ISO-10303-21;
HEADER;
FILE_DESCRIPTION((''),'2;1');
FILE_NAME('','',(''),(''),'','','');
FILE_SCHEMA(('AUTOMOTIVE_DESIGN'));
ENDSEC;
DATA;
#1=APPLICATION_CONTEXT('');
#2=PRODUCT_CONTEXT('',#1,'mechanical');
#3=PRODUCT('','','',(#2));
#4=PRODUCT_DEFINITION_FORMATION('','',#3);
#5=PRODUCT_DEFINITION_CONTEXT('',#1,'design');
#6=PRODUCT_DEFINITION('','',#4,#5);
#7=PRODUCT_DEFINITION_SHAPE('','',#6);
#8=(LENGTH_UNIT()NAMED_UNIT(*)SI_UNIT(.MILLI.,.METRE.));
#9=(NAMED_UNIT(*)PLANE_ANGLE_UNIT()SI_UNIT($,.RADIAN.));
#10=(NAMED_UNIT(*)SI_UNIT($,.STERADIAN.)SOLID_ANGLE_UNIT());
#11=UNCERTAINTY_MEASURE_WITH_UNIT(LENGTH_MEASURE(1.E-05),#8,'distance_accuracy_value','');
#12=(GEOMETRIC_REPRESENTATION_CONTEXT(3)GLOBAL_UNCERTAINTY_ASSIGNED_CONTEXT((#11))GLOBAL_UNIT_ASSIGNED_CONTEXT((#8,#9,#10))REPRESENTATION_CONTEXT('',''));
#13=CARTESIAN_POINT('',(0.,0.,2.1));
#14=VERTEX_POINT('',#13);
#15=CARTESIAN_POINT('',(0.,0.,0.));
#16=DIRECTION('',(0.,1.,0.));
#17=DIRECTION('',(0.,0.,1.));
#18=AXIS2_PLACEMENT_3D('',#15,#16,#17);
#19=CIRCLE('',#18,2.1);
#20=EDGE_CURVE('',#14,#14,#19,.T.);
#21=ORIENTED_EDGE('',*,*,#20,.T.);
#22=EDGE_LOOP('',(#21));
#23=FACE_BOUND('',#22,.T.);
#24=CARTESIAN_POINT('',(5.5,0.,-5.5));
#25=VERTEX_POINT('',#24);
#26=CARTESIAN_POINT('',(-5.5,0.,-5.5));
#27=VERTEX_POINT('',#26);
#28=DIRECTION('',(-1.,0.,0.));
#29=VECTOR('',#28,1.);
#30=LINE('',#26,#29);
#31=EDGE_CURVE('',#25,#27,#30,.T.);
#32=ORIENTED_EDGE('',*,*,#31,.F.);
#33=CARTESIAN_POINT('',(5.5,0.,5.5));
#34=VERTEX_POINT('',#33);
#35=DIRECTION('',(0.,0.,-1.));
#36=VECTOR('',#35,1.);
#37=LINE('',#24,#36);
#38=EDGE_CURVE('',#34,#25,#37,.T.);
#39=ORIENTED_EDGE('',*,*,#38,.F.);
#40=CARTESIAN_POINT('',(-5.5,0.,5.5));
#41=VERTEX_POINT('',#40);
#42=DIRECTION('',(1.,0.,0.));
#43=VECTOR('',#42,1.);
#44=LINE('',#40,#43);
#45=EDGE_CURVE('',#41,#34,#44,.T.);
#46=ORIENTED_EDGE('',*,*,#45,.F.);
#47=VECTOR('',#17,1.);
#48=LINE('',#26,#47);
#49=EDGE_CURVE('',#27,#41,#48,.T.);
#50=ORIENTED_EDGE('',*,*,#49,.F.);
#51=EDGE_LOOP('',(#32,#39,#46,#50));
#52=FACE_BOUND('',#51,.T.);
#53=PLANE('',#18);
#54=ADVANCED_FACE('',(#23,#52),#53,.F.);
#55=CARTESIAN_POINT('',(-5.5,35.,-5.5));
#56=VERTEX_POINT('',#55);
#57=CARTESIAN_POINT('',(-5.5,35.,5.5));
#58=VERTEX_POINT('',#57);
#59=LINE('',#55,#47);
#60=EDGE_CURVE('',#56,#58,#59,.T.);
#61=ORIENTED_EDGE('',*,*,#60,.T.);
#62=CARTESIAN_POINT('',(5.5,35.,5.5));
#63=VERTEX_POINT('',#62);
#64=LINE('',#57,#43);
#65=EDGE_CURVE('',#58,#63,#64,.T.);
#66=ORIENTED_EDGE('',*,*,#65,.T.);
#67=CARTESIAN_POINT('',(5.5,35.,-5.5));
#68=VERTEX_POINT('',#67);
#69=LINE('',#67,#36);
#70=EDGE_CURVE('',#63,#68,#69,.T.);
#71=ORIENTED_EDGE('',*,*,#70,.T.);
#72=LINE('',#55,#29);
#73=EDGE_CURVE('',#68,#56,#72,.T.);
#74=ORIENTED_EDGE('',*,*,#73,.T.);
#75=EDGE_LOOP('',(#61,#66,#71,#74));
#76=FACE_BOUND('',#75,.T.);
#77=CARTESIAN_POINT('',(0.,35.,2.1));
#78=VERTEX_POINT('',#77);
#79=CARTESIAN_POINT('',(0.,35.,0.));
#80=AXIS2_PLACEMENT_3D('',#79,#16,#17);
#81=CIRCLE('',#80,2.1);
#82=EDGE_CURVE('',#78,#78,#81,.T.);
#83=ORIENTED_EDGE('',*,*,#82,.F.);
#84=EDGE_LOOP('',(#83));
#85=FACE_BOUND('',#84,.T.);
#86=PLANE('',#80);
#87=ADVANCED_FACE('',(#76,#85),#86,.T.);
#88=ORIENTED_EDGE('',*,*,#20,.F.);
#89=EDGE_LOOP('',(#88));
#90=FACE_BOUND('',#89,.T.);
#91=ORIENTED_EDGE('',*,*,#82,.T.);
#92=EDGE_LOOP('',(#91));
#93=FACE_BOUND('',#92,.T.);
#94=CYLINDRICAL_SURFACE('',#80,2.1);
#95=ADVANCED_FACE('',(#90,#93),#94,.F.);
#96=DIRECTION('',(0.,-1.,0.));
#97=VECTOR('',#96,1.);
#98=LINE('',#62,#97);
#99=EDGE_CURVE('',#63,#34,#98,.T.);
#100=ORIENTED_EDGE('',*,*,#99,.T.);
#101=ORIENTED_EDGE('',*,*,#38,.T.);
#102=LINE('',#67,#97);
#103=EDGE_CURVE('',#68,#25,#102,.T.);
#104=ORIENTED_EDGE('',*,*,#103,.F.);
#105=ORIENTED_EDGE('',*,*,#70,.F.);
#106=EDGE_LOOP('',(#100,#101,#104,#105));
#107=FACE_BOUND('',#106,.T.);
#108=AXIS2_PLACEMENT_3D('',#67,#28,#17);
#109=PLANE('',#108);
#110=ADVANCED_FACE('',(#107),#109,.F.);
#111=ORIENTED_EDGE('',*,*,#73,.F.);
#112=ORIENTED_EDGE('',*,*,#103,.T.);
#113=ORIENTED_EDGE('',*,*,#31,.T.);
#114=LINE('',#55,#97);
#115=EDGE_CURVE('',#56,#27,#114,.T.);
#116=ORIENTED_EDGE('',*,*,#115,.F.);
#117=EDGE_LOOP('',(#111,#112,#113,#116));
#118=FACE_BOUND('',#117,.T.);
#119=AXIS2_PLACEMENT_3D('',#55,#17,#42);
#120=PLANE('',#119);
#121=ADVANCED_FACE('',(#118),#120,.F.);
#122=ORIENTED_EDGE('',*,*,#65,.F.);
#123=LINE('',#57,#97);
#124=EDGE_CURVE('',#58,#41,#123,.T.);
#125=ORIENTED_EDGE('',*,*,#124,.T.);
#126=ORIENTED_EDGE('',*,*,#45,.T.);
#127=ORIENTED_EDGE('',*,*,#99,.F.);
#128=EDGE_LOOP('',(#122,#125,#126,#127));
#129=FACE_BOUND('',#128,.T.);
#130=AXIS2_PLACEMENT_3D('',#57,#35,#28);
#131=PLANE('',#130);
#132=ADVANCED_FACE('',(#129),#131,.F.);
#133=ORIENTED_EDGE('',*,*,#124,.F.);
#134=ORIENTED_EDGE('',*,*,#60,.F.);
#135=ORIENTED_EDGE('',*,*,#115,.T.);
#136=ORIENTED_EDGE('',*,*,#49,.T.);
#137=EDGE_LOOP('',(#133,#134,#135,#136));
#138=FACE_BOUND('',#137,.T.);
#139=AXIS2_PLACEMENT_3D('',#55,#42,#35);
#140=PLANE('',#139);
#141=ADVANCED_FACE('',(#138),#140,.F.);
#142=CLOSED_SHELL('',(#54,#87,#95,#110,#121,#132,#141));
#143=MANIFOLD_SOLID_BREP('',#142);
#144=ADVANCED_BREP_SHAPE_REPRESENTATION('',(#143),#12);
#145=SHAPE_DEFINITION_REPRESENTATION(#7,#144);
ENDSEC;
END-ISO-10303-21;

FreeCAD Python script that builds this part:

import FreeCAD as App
import Part
import Sketcher
from FreeCAD import Vector


def add_polygon(sketch, points):
    """Adds a closed chain of lines whose ends are joined by coincident constraints."""
    first, n = sketch.GeometryCount, len(points)
    for a, b in zip(points, points[1:] + points[:1]):
        sketch.addGeometry(Part.LineSegment(App.Vector(*a, 0), App.Vector(*b, 0)), False)
    for i in range(n):
        sketch.addConstraint(Sketcher.Constraint("Coincident", first + i, 2, first + (i + 1) % n, 1))

doc = App.newDocument("Part")
body = doc.addObject("PartDesign::Body", "Body")

sketch1 = body.newObject("Sketcher::SketchObject", "Sketch")
sketch1.AttachmentSupport = (doc.getObject("XZ_Plane"), [""])
sketch1.MapMode = "FlatFace"
add_polygon(sketch1, [(-6, -6), (-6, 6), (6, 6), (6, -6)])
sketch1.addConstraint([
    Sketcher.Constraint("Vertical", 0),
    Sketcher.Constraint("Horizontal", 1),
    Sketcher.Constraint("Vertical", 2),
    Sketcher.Constraint("Horizontal", 3),
    Sketcher.Constraint("Symmetric", 0, 2, 2, 2, -1, 1),
    Sketcher.Constraint("Equal", 3, 0),
    Sketcher.Constraint("DistanceX", 1, 1, 1, 2, 11.0),
])
pad1 = body.newObject("PartDesign::Pad", "Pad")
pad1.Profile = sketch1
pad1.Length = 35
pad1.Reversed = True

sketch2 = body.newObject("Sketcher::SketchObject", "Sketch001")
sketch2.AttachmentSupport = (doc.getObject("XZ_Plane"), [""])
sketch2.MapMode = "FlatFace"
sketch2.AttachmentOffset = App.Placement(Vector(0, 0, -35), App.Rotation())
sketch2.addGeometry(Part.Circle(Vector(0, 0, 0), Vector(0, 0, 1), 2.1), False)
sketch2.addConstraint([
    Sketcher.Constraint("Coincident", 0, 3, -1, 1),
    Sketcher.Constraint("Diameter", 0, 4.2),
])
doc.recompute()
hole = body.newObject("PartDesign::Hole", "Hole")
hole.Profile = sketch2
hole.ThreadType = "None"
hole.Diameter = 4.2
hole.DepthType = "ThroughAll"
hole.Reversed = True

doc.recompute()
